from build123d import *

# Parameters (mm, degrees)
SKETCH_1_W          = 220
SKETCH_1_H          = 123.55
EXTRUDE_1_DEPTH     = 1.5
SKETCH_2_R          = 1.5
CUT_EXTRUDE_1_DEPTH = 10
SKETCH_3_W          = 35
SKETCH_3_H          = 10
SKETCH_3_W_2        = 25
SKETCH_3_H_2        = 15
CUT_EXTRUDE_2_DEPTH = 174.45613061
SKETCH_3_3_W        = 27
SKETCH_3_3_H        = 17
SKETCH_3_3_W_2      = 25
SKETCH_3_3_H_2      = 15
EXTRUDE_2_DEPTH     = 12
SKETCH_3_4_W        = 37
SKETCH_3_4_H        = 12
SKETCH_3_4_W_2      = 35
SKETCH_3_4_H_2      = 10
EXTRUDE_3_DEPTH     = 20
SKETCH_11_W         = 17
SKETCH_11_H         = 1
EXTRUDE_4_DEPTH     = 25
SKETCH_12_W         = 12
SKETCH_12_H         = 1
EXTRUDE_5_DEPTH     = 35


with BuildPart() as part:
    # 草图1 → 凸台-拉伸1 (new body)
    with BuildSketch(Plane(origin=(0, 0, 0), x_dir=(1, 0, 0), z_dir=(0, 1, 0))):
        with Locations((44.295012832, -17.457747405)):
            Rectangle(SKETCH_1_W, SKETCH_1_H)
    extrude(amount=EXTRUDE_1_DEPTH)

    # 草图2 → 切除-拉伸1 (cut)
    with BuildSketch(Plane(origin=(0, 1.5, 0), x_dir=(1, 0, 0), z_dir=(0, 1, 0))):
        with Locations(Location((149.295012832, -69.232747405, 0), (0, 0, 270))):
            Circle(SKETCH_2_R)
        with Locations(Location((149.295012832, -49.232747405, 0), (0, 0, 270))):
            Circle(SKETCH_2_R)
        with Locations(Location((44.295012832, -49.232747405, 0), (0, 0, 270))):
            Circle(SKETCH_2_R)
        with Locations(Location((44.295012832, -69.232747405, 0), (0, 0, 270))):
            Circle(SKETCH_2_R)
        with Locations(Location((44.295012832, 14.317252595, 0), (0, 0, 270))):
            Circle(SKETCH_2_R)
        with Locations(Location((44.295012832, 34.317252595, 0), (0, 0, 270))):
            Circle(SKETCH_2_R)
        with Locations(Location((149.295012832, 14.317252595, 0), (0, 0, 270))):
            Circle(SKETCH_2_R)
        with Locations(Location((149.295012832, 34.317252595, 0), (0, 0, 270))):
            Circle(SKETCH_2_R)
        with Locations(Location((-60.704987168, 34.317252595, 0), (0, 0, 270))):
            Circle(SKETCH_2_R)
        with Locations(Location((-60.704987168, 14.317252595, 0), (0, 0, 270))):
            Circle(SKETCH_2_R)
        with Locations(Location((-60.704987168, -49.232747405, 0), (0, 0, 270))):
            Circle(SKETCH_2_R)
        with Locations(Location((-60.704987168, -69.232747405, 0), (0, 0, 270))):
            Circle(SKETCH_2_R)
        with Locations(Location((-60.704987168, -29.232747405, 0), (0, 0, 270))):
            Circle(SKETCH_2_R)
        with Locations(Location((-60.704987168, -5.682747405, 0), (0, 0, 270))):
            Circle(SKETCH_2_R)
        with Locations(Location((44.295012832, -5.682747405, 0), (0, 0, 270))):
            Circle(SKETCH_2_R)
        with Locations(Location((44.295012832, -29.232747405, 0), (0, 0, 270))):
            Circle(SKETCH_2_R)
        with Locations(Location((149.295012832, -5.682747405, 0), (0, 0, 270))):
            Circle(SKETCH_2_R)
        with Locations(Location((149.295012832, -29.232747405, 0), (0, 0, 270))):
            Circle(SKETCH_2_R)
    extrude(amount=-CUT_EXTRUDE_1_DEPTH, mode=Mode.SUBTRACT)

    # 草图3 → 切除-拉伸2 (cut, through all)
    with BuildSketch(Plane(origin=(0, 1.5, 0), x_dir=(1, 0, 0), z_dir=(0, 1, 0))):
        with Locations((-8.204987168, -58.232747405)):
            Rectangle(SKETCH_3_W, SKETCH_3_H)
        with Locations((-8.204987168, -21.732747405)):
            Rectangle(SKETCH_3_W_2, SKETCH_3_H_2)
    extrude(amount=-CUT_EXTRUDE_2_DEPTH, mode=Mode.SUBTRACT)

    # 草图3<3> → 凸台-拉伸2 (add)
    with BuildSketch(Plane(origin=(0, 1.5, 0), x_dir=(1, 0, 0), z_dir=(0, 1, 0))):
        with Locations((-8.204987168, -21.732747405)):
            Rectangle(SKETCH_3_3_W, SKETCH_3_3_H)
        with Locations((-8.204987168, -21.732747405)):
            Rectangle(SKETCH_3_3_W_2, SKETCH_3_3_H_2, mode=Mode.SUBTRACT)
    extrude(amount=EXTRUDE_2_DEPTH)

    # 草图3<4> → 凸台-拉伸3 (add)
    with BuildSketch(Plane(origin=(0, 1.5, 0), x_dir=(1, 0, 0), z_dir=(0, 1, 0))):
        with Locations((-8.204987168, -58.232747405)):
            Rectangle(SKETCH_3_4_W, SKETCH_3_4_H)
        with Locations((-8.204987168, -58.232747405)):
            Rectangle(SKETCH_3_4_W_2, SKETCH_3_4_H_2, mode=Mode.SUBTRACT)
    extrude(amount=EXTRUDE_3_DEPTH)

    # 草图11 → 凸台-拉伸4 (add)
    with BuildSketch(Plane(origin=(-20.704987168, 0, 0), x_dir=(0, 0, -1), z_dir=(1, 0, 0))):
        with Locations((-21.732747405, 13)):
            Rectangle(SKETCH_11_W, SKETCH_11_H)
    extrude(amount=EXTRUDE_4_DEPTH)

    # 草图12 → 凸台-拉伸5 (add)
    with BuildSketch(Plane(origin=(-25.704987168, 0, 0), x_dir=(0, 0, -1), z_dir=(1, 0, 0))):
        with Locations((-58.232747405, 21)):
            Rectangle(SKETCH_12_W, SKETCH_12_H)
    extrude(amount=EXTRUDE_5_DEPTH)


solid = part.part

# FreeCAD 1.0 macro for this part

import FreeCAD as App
import Part
import Sketcher

V = App.Vector
Q = App.Units.Quantity

doc = App.newDocument("Part")
body = doc.addObject("PartDesign::Body", "Body")

# Sketch on XZ plane
sketch1 = doc.addObject("Sketcher::SketchObject", "Sketch")
body.addObject(sketch1)
sketch1.AttachmentSupport = (doc.XZ_Plane, [""])
sketch1.MapMode = "FlatFace"
sketch1.addGeometry([
    Part.LineSegment(V(-65.704987, -44.317253, 0), V(-65.704987, 79.232747, 0)),
    Part.LineSegment(V(-65.704987, 79.232747, 0), V(154.295013, 79.232747, 0)),
    Part.LineSegment(V(154.295013, 79.232747, 0), V(154.295013, -44.317253, 0)),
    Part.LineSegment(V(154.295013, -44.317253, 0), V(-65.704987, -44.317253, 0)),
], False)
sketch1.addConstraint([
    Sketcher.Constraint("Coincident", 0, 2, 1, 1),
    Sketcher.Constraint("Coincident", 1, 2, 2, 1),
    Sketcher.Constraint("Coincident", 2, 2, 3, 1),
    Sketcher.Constraint("Coincident", 3, 2, 0, 1),
    Sketcher.Constraint("Vertical", 0),
    Sketcher.Constraint("Horizontal", 1),
    Sketcher.Constraint("Vertical", 2),
    Sketcher.Constraint("Horizontal", 3),
    Sketcher.Constraint("DistanceX", 1, 1, 1, 2, Q("220 mm")),
    Sketcher.Constraint("DistanceY", 0, 1, 0, 2, Q("123.55 mm")),
    Sketcher.Constraint("DistanceX", 0, 2, -1, 1, Q("65.704987 mm")),
    Sketcher.Constraint("DistanceY", -1, 1, 0, 2, Q("79.232747 mm")),
])
pad1 = doc.addObject("PartDesign::Pad", "Pad")
body.addObject(pad1)
pad1.Profile = sketch1
pad1.Length = 1.5
pad1.Reversed = True

# Sketch on XZ plane
sketch2 = doc.addObject("Sketcher::SketchObject", "Sketch001")
body.addObject(sketch2)
sketch2.AttachmentSupport = (doc.XZ_Plane, [""])
sketch2.MapMode = "FlatFace"
sketch2.AttachmentOffset = App.Placement(V(0, 0, -1.5), App.Rotation())
sketch2.addGeometry([
    Part.Circle(V(149.295013, 69.232747, 0), V(0, 0, 1), 1.5),  # 0
    Part.Circle(V(149.295013, 49.232747, 0), V(0, 0, 1), 1.5),  # 1
    Part.Circle(V(44.295013, 49.232747, 0), V(0, 0, 1), 1.5),  # 2
    Part.Circle(V(44.295013, 69.232747, 0), V(0, 0, 1), 1.5),  # 3
    Part.Circle(V(44.295013, -14.317253, 0), V(0, 0, 1), 1.5),  # 4
    Part.Circle(V(44.295013, -34.317253, 0), V(0, 0, 1), 1.5),  # 5
    Part.Circle(V(149.295013, -14.317253, 0), V(0, 0, 1), 1.5),  # 6
    Part.Circle(V(149.295013, -34.317253, 0), V(0, 0, 1), 1.5),  # 7
    Part.Circle(V(-60.704987, -34.317253, 0), V(0, 0, 1), 1.5),  # 8
    Part.Circle(V(-60.704987, -14.317253, 0), V(0, 0, 1), 1.5),  # 9
    Part.Circle(V(-60.704987, 49.232747, 0), V(0, 0, 1), 1.5),  # 10
    Part.Circle(V(-60.704987, 69.232747, 0), V(0, 0, 1), 1.5),  # 11
    Part.Circle(V(-60.704987, 29.232747, 0), V(0, 0, 1), 1.5),  # 12
    Part.Circle(V(-60.704987, 5.682747, 0), V(0, 0, 1), 1.5),  # 13
    Part.Circle(V(44.295013, 5.682747, 0), V(0, 0, 1), 1.5),  # 14
    Part.Circle(V(44.295013, 29.232747, 0), V(0, 0, 1), 1.5),  # 15
    Part.Circle(V(149.295013, 5.682747, 0), V(0, 0, 1), 1.5),  # 16
    Part.Circle(V(149.295013, 29.232747, 0), V(0, 0, 1), 1.5),  # 17
], False)
sketch2.addConstraint([
    Sketcher.Constraint("Equal", 0, 1),
    Sketcher.Constraint("Equal", 1, 2),
    Sketcher.Constraint("Equal", 2, 3),
    Sketcher.Constraint("Equal", 3, 4),
    Sketcher.Constraint("Equal", 4, 5),
    Sketcher.Constraint("Equal", 5, 6),
    Sketcher.Constraint("Equal", 6, 7),
    Sketcher.Constraint("Equal", 7, 8),
    Sketcher.Constraint("Equal", 8, 9),
    Sketcher.Constraint("Equal", 9, 10),
    Sketcher.Constraint("Equal", 10, 11),
    Sketcher.Constraint("Equal", 11, 12),
    Sketcher.Constraint("Equal", 12, 13),
    Sketcher.Constraint("Equal", 13, 14),
    Sketcher.Constraint("Equal", 14, 15),
    Sketcher.Constraint("Equal", 15, 16),
    Sketcher.Constraint("Equal", 16, 17),
    Sketcher.Constraint("Horizontal", 1, 3, 2, 3),
    Sketcher.Constraint("Horizontal", 0, 3, 3, 3),
    Sketcher.Constraint("Horizontal", 4, 3, 6, 3),
    Sketcher.Constraint("Horizontal", 5, 3, 7, 3),
    Sketcher.Constraint("Horizontal", 7, 3, 8, 3),
    Sketcher.Constraint("Horizontal", 6, 3, 9, 3),
    Sketcher.Constraint("Horizontal", 2, 3, 10, 3),
    Sketcher.Constraint("Horizontal", 3, 3, 11, 3),
    Sketcher.Constraint("Horizontal", 13, 3, 14, 3),
    Sketcher.Constraint("Horizontal", 12, 3, 15, 3),
    Sketcher.Constraint("Horizontal", 14, 3, 16, 3),
    Sketcher.Constraint("Horizontal", 15, 3, 17, 3),
    Sketcher.Constraint("Vertical", 0, 3, 1, 3),
    Sketcher.Constraint("Vertical", 2, 3, 3, 3),
    Sketcher.Constraint("Vertical", 3, 3, 4, 3),
    Sketcher.Constraint("Vertical", 4, 3, 5, 3),
    Sketcher.Constraint("Vertical", 1, 3, 6, 3),
    Sketcher.Constraint("Vertical", 6, 3, 7, 3),
    Sketcher.Constraint("Vertical", 8, 3, 9, 3),
    Sketcher.Constraint("Vertical", 9, 3, 10, 3),
    Sketcher.Constraint("Vertical", 10, 3, 11, 3),
    Sketcher.Constraint("Vertical", 11, 3, 12, 3),
    Sketcher.Constraint("Vertical", 12, 3, 13, 3),
    Sketcher.Constraint("Vertical", 5, 3, 14, 3),
    Sketcher.Constraint("Vertical", 14, 3, 15, 3),
    Sketcher.Constraint("Vertical", 7, 3, 16, 3),
    Sketcher.Constraint("Vertical", 16, 3, 17, 3),
    Sketcher.Constraint("Diameter", 0, Q("3 mm")),
    Sketcher.Constraint("DistanceY", 1, 3, 0, 3, Q("20 mm")),
    Sketcher.Constraint("DistanceX", 2, 3, 1, 3, Q("105 mm")),
    Sketcher.Constraint("DistanceY", 5, 3, 4, 3, Q("20 mm")),
    Sketcher.Constraint("DistanceX", 8, 3, 5, 3, Q("105 mm")),
    Sketcher.Constraint("DistanceY", 12, 3, 10, 3, Q("20 mm")),
    Sketcher.Constraint("DistanceY", 9, 3, 13, 3, Q("20 mm")),
    Sketcher.Constraint("DistanceY", 4, 3, 2, 3, Q("63.55 mm")),
    Sketcher.Constraint("DistanceX", -1, 1, 0, 3, Q("149.295013 mm")),
    Sketcher.Constraint("DistanceY", -1, 1, 0, 3, Q("69.232747 mm")),
])
pocket1 = doc.addObject("PartDesign::Pocket", "Pocket")
body.addObject(pocket1)
pocket1.Profile = sketch2
pocket1.Length = 10
pocket1.Reversed = True

# Sketch on XZ plane
sketch3 = doc.addObject("Sketcher::SketchObject", "Sketch002")
body.addObject(sketch3)
sketch3.AttachmentSupport = (doc.XZ_Plane, [""])
sketch3.MapMode = "FlatFace"
sketch3.AttachmentOffset = App.Placement(V(0, 0, -1.5), App.Rotation())
sketch3.addGeometry([
    Part.LineSegment(V(-25.704987, 53.232747, 0), V(-25.704987, 63.232747, 0)),  # 0
    Part.LineSegment(V(-25.704987, 63.232747, 0), V(9.295013, 63.232747, 0)),  # 1
    Part.LineSegment(V(9.295013, 63.232747, 0), V(9.295013, 53.232747, 0)),  # 2
    Part.LineSegment(V(9.295013, 53.232747, 0), V(-25.704987, 53.232747, 0)),  # 3
    Part.LineSegment(V(-20.704987, 14.232747, 0), V(-20.704987, 29.232747, 0)),  # 4
    Part.LineSegment(V(-20.704987, 29.232747, 0), V(4.295013, 29.232747, 0)),  # 5
    Part.LineSegment(V(4.295013, 29.232747, 0), V(4.295013, 14.232747, 0)),  # 6
    Part.LineSegment(V(4.295013, 14.232747, 0), V(-20.704987, 14.232747, 0)),  # 7
], False)
sketch3.addConstraint([
    Sketcher.Constraint("Coincident", 0, 2, 1, 1),
    Sketcher.Constraint("Coincident", 1, 2, 2, 1),
    Sketcher.Constraint("Coincident", 2, 2, 3, 1),
    Sketcher.Constraint("Coincident", 3, 2, 0, 1),
    Sketcher.Constraint("Coincident", 4, 2, 5, 1),
    Sketcher.Constraint("Coincident", 5, 2, 6, 1),
    Sketcher.Constraint("Coincident", 6, 2, 7, 1),
    Sketcher.Constraint("Coincident", 7, 2, 4, 1),
    Sketcher.Constraint("Vertical", 0),
    Sketcher.Constraint("Horizontal", 1),
    Sketcher.Constraint("Vertical", 2),
    Sketcher.Constraint("Horizontal", 3),
    Sketcher.Constraint("Vertical", 4),
    Sketcher.Constraint("Horizontal", 5),
    Sketcher.Constraint("Vertical", 6),
    Sketcher.Constraint("Horizontal", 7),
    Sketcher.Constraint("DistanceX", 1, 1, 1, 2, Q("35 mm")),
    Sketcher.Constraint("DistanceX", 5, 1, 5, 2, Q("25 mm")),
    Sketcher.Constraint("DistanceY", 0, 1, 0, 2, Q("10 mm")),
    Sketcher.Constraint("DistanceY", 4, 1, 4, 2, Q("15 mm")),
    Sketcher.Constraint("DistanceX", 3, 2, 4, 2, Q("5 mm")),
    Sketcher.Constraint("DistanceY", 4, 2, 3, 2, Q("24 mm")),
    Sketcher.Constraint("DistanceX", 0, 2, -1, 1, Q("25.704987 mm")),
    Sketcher.Constraint("DistanceY", -1, 1, 0, 2, Q("63.232747 mm")),
])
pocket2 = doc.addObject("PartDesign::Pocket", "Pocket001")
body.addObject(pocket2)
pocket2.Profile = sketch3
pocket2.Type = "ThroughAll"
pocket2.Reversed = True

# Sketch on XZ plane
sketch4 = doc.addObject("Sketcher::SketchObject", "Sketch003")
body.addObject(sketch4)
sketch4.AttachmentSupport = (doc.XZ_Plane, [""])
sketch4.MapMode = "FlatFace"
sketch4.AttachmentOffset = App.Placement(V(0, 0, -1.5), App.Rotation())
sketch4.addGeometry([
    Part.LineSegment(V(-21.704987, 13.232747, 0), V(-21.704987, 30.232747, 0)),  # 0
    Part.LineSegment(V(-21.704987, 30.232747, 0), V(5.295013, 30.232747, 0)),  # 1
    Part.LineSegment(V(5.295013, 30.232747, 0), V(5.295013, 13.232747, 0)),  # 2
    Part.LineSegment(V(5.295013, 13.232747, 0), V(-21.704987, 13.232747, 0)),  # 3
    Part.LineSegment(V(4.295013, 29.232747, 0), V(-20.704987, 29.232747, 0)),  # 4
    Part.LineSegment(V(-20.704987, 29.232747, 0), V(-20.704987, 14.232747, 0)),  # 5
    Part.LineSegment(V(-20.704987, 14.232747, 0), V(4.295013, 14.232747, 0)),  # 6
    Part.LineSegment(V(4.295013, 14.232747, 0), V(4.295013, 29.232747, 0)),  # 7
], False)
sketch4.addConstraint([
    Sketcher.Constraint("Coincident", 0, 2, 1, 1),
    Sketcher.Constraint("Coincident", 1, 2, 2, 1),
    Sketcher.Constraint("Coincident", 2, 2, 3, 1),
    Sketcher.Constraint("Coincident", 3, 2, 0, 1),
    Sketcher.Constraint("Coincident", 4, 2, 5, 1),
    Sketcher.Constraint("Coincident", 5, 2, 6, 1),
    Sketcher.Constraint("Coincident", 6, 2, 7, 1),
    Sketcher.Constraint("Coincident", 7, 2, 4, 1),
    Sketcher.Constraint("Vertical", 0),
    Sketcher.Constraint("Horizontal", 1),
    Sketcher.Constraint("Vertical", 2),
    Sketcher.Constraint("Horizontal", 3),
    Sketcher.Constraint("Horizontal", 4),
    Sketcher.Constraint("Vertical", 5),
    Sketcher.Constraint("Horizontal", 6),
    Sketcher.Constraint("Vertical", 7),
    Sketcher.Constraint("DistanceX", 1, 1, 1, 2, Q("27 mm")),
    Sketcher.Constraint("DistanceX", 4, 2, 4, 1, Q("25 mm")),
    Sketcher.Constraint("DistanceY", 0, 1, 0, 2, Q("17 mm")),
    Sketcher.Constraint("DistanceY", 5, 2, 5, 1, Q("15 mm")),
    Sketcher.Constraint("DistanceX", 0, 2, 4, 2, Q("1 mm")),
    Sketcher.Constraint("DistanceY", 4, 2, 0, 2, Q("1 mm")),
    Sketcher.Constraint("DistanceX", 0, 2, -1, 1, Q("21.704987 mm")),
    Sketcher.Constraint("DistanceY", -1, 1, 0, 2, Q("30.232747 mm")),
])
pad2 = doc.addObject("PartDesign::Pad", "Pad001")
body.addObject(pad2)
pad2.Profile = sketch4
pad2.Length = 12
pad2.Reversed = True

# Sketch on XZ plane
sketch5 = doc.addObject("Sketcher::SketchObject", "Sketch004")
body.addObject(sketch5)
sketch5.AttachmentSupport = (doc.XZ_Plane, [""])
sketch5.MapMode = "FlatFace"
sketch5.AttachmentOffset = App.Placement(V(0, 0, -1.5), App.Rotation())
sketch5.addGeometry([
    Part.LineSegment(V(-26.704987, 52.232747, 0), V(-26.704987, 64.232747, 0)),  # 0
    Part.LineSegment(V(-26.704987, 64.232747, 0), V(10.295013, 64.232747, 0)),  # 1
    Part.LineSegment(V(10.295013, 64.232747, 0), V(10.295013, 52.232747, 0)),  # 2
    Part.LineSegment(V(10.295013, 52.232747, 0), V(-26.704987, 52.232747, 0)),  # 3
    Part.LineSegment(V(9.295013, 63.232747, 0), V(-25.704987, 63.232747, 0)),  # 4
    Part.LineSegment(V(-25.704987, 63.232747, 0), V(-25.704987, 53.232747, 0)),  # 5
    Part.LineSegment(V(-25.704987, 53.232747, 0), V(9.295013, 53.232747, 0)),  # 6
    Part.LineSegment(V(9.295013, 53.232747, 0), V(9.295013, 63.232747, 0)),  # 7
], False)
sketch5.addConstraint([
    Sketcher.Constraint("Coincident", 0, 2, 1, 1),
    Sketcher.Constraint("Coincident", 1, 2, 2, 1),
    Sketcher.Constraint("Coincident", 2, 2, 3, 1),
    Sketcher.Constraint("Coincident", 3, 2, 0, 1),
    Sketcher.Constraint("Coincident", 4, 2, 5, 1),
    Sketcher.Constraint("Coincident", 5, 2, 6, 1),
    Sketcher.Constraint("Coincident", 6, 2, 7, 1),
    Sketcher.Constraint("Coincident", 7, 2, 4, 1),
    Sketcher.Constraint("Vertical", 0),
    Sketcher.Constraint("Horizontal", 1),
    Sketcher.Constraint("Vertical", 2),
    Sketcher.Constraint("Horizontal", 3),
    Sketcher.Constraint("Horizontal", 4),
    Sketcher.Constraint("Vertical", 5),
    Sketcher.Constraint("Horizontal", 6),
    Sketcher.Constraint("Vertical", 7),
    Sketcher.Constraint("DistanceX", 1, 1, 1, 2, Q("37 mm")),
    Sketcher.Constraint("DistanceX", 4, 2, 4, 1, Q("35 mm")),
    Sketcher.Constraint("DistanceY", 0, 1, 0, 2, Q("12 mm")),
    Sketcher.Constraint("DistanceY", 5, 2, 5, 1, Q("10 mm")),
    Sketcher.Constraint("DistanceX", 0, 2, 4, 2, Q("1 mm")),
    Sketcher.Constraint("DistanceY", 4, 2, 0, 2, Q("1 mm")),
    Sketcher.Constraint("DistanceX", 0, 2, -1, 1, Q("26.704987 mm")),
    Sketcher.Constraint("DistanceY", -1, 1, 0, 2, Q("64.232747 mm")),
])
pad3 = doc.addObject("PartDesign::Pad", "Pad002")
body.addObject(pad3)
pad3.Profile = sketch5
pad3.Length = 20
pad3.Reversed = True

# Sketch on YZ plane
sketch6 = doc.addObject("Sketcher::SketchObject", "Sketch005")
body.addObject(sketch6)
sketch6.AttachmentSupport = (doc.YZ_Plane, [""])
sketch6.MapMode = "FlatFace"
sketch6.AttachmentOffset = App.Placement(V(0, 0, -20.704987), App.Rotation())
sketch6.addGeometry([
    Part.LineSegment(V(13.5, 30.232747, 0), V(12.5, 30.232747, 0)),
    Part.LineSegment(V(12.5, 30.232747, 0), V(12.5, 13.232747, 0)),
    Part.LineSegment(V(12.5, 13.232747, 0), V(13.5, 13.232747, 0)),
    Part.LineSegment(V(13.5, 13.232747, 0), V(13.5, 30.232747, 0)),
], False)
sketch6.addConstraint([
    Sketcher.Constraint("Coincident", 0, 2, 1, 1),
    Sketcher.Constraint("Coincident", 1, 2, 2, 1),
    Sketcher.Constraint("Coincident", 2, 2, 3, 1),
    Sketcher.Constraint("Coincident", 3, 2, 0, 1),
    Sketcher.Constraint("Horizontal", 0),
    Sketcher.Constraint("Vertical", 1),
    Sketcher.Constraint("Horizontal", 2),
    Sketcher.Constraint("Vertical", 3),
    Sketcher.Constraint("DistanceX", 0, 2, 0, 1, Q("1 mm")),
    Sketcher.Constraint("DistanceY", 1, 2, 1, 1, Q("17 mm")),
    Sketcher.Constraint("DistanceX", -1, 1, 0, 2, Q("12.5 mm")),
    Sketcher.Constraint("DistanceY", -1, 1, 0, 2, Q("30.232747 mm")),
])
pad4 = doc.addObject("PartDesign::Pad", "Pad003")
body.addObject(pad4)
pad4.Profile = sketch6
pad4.Length = 25

# Sketch on YZ plane
sketch7 = doc.addObject("Sketcher::SketchObject", "Sketch006")
body.addObject(sketch7)
sketch7.AttachmentSupport = (doc.YZ_Plane, [""])
sketch7.MapMode = "FlatFace"
sketch7.AttachmentOffset = App.Placement(V(0, 0, -25.704987), App.Rotation())
sketch7.addGeometry([
    Part.LineSegment(V(21.5, 64.232747, 0), V(20.5, 64.232747, 0)),
    Part.LineSegment(V(20.5, 64.232747, 0), V(20.5, 52.232747, 0)),
    Part.LineSegment(V(20.5, 52.232747, 0), V(21.5, 52.232747, 0)),
    Part.LineSegment(V(21.5, 52.232747, 0), V(21.5, 64.232747, 0)),
], False)
sketch7.addConstraint([
    Sketcher.Constraint("Coincident", 0, 2, 1, 1),
    Sketcher.Constraint("Coincident", 1, 2, 2, 1),
    Sketcher.Constraint("Coincident", 2, 2, 3, 1),
    Sketcher.Constraint("Coincident", 3, 2, 0, 1),
    Sketcher.Constraint("Horizontal", 0),
    Sketcher.Constraint("Vertical", 1),
    Sketcher.Constraint("Horizontal", 2),
    Sketcher.Constraint("Vertical", 3),
    Sketcher.Constraint("DistanceX", 0, 2, 0, 1, Q("1 mm")),
    Sketcher.Constraint("DistanceY", 1, 2, 1, 1, Q("12 mm")),
    Sketcher.Constraint("DistanceX", -1, 1, 0, 2, Q("20.5 mm")),
    Sketcher.Constraint("DistanceY", -1, 1, 0, 2, Q("64.232747 mm")),
])
pad5 = doc.addObject("PartDesign::Pad", "Pad004")
body.addObject(pad5)
pad5.Profile = sketch7
pad5.Length = 35

doc.recompute()
